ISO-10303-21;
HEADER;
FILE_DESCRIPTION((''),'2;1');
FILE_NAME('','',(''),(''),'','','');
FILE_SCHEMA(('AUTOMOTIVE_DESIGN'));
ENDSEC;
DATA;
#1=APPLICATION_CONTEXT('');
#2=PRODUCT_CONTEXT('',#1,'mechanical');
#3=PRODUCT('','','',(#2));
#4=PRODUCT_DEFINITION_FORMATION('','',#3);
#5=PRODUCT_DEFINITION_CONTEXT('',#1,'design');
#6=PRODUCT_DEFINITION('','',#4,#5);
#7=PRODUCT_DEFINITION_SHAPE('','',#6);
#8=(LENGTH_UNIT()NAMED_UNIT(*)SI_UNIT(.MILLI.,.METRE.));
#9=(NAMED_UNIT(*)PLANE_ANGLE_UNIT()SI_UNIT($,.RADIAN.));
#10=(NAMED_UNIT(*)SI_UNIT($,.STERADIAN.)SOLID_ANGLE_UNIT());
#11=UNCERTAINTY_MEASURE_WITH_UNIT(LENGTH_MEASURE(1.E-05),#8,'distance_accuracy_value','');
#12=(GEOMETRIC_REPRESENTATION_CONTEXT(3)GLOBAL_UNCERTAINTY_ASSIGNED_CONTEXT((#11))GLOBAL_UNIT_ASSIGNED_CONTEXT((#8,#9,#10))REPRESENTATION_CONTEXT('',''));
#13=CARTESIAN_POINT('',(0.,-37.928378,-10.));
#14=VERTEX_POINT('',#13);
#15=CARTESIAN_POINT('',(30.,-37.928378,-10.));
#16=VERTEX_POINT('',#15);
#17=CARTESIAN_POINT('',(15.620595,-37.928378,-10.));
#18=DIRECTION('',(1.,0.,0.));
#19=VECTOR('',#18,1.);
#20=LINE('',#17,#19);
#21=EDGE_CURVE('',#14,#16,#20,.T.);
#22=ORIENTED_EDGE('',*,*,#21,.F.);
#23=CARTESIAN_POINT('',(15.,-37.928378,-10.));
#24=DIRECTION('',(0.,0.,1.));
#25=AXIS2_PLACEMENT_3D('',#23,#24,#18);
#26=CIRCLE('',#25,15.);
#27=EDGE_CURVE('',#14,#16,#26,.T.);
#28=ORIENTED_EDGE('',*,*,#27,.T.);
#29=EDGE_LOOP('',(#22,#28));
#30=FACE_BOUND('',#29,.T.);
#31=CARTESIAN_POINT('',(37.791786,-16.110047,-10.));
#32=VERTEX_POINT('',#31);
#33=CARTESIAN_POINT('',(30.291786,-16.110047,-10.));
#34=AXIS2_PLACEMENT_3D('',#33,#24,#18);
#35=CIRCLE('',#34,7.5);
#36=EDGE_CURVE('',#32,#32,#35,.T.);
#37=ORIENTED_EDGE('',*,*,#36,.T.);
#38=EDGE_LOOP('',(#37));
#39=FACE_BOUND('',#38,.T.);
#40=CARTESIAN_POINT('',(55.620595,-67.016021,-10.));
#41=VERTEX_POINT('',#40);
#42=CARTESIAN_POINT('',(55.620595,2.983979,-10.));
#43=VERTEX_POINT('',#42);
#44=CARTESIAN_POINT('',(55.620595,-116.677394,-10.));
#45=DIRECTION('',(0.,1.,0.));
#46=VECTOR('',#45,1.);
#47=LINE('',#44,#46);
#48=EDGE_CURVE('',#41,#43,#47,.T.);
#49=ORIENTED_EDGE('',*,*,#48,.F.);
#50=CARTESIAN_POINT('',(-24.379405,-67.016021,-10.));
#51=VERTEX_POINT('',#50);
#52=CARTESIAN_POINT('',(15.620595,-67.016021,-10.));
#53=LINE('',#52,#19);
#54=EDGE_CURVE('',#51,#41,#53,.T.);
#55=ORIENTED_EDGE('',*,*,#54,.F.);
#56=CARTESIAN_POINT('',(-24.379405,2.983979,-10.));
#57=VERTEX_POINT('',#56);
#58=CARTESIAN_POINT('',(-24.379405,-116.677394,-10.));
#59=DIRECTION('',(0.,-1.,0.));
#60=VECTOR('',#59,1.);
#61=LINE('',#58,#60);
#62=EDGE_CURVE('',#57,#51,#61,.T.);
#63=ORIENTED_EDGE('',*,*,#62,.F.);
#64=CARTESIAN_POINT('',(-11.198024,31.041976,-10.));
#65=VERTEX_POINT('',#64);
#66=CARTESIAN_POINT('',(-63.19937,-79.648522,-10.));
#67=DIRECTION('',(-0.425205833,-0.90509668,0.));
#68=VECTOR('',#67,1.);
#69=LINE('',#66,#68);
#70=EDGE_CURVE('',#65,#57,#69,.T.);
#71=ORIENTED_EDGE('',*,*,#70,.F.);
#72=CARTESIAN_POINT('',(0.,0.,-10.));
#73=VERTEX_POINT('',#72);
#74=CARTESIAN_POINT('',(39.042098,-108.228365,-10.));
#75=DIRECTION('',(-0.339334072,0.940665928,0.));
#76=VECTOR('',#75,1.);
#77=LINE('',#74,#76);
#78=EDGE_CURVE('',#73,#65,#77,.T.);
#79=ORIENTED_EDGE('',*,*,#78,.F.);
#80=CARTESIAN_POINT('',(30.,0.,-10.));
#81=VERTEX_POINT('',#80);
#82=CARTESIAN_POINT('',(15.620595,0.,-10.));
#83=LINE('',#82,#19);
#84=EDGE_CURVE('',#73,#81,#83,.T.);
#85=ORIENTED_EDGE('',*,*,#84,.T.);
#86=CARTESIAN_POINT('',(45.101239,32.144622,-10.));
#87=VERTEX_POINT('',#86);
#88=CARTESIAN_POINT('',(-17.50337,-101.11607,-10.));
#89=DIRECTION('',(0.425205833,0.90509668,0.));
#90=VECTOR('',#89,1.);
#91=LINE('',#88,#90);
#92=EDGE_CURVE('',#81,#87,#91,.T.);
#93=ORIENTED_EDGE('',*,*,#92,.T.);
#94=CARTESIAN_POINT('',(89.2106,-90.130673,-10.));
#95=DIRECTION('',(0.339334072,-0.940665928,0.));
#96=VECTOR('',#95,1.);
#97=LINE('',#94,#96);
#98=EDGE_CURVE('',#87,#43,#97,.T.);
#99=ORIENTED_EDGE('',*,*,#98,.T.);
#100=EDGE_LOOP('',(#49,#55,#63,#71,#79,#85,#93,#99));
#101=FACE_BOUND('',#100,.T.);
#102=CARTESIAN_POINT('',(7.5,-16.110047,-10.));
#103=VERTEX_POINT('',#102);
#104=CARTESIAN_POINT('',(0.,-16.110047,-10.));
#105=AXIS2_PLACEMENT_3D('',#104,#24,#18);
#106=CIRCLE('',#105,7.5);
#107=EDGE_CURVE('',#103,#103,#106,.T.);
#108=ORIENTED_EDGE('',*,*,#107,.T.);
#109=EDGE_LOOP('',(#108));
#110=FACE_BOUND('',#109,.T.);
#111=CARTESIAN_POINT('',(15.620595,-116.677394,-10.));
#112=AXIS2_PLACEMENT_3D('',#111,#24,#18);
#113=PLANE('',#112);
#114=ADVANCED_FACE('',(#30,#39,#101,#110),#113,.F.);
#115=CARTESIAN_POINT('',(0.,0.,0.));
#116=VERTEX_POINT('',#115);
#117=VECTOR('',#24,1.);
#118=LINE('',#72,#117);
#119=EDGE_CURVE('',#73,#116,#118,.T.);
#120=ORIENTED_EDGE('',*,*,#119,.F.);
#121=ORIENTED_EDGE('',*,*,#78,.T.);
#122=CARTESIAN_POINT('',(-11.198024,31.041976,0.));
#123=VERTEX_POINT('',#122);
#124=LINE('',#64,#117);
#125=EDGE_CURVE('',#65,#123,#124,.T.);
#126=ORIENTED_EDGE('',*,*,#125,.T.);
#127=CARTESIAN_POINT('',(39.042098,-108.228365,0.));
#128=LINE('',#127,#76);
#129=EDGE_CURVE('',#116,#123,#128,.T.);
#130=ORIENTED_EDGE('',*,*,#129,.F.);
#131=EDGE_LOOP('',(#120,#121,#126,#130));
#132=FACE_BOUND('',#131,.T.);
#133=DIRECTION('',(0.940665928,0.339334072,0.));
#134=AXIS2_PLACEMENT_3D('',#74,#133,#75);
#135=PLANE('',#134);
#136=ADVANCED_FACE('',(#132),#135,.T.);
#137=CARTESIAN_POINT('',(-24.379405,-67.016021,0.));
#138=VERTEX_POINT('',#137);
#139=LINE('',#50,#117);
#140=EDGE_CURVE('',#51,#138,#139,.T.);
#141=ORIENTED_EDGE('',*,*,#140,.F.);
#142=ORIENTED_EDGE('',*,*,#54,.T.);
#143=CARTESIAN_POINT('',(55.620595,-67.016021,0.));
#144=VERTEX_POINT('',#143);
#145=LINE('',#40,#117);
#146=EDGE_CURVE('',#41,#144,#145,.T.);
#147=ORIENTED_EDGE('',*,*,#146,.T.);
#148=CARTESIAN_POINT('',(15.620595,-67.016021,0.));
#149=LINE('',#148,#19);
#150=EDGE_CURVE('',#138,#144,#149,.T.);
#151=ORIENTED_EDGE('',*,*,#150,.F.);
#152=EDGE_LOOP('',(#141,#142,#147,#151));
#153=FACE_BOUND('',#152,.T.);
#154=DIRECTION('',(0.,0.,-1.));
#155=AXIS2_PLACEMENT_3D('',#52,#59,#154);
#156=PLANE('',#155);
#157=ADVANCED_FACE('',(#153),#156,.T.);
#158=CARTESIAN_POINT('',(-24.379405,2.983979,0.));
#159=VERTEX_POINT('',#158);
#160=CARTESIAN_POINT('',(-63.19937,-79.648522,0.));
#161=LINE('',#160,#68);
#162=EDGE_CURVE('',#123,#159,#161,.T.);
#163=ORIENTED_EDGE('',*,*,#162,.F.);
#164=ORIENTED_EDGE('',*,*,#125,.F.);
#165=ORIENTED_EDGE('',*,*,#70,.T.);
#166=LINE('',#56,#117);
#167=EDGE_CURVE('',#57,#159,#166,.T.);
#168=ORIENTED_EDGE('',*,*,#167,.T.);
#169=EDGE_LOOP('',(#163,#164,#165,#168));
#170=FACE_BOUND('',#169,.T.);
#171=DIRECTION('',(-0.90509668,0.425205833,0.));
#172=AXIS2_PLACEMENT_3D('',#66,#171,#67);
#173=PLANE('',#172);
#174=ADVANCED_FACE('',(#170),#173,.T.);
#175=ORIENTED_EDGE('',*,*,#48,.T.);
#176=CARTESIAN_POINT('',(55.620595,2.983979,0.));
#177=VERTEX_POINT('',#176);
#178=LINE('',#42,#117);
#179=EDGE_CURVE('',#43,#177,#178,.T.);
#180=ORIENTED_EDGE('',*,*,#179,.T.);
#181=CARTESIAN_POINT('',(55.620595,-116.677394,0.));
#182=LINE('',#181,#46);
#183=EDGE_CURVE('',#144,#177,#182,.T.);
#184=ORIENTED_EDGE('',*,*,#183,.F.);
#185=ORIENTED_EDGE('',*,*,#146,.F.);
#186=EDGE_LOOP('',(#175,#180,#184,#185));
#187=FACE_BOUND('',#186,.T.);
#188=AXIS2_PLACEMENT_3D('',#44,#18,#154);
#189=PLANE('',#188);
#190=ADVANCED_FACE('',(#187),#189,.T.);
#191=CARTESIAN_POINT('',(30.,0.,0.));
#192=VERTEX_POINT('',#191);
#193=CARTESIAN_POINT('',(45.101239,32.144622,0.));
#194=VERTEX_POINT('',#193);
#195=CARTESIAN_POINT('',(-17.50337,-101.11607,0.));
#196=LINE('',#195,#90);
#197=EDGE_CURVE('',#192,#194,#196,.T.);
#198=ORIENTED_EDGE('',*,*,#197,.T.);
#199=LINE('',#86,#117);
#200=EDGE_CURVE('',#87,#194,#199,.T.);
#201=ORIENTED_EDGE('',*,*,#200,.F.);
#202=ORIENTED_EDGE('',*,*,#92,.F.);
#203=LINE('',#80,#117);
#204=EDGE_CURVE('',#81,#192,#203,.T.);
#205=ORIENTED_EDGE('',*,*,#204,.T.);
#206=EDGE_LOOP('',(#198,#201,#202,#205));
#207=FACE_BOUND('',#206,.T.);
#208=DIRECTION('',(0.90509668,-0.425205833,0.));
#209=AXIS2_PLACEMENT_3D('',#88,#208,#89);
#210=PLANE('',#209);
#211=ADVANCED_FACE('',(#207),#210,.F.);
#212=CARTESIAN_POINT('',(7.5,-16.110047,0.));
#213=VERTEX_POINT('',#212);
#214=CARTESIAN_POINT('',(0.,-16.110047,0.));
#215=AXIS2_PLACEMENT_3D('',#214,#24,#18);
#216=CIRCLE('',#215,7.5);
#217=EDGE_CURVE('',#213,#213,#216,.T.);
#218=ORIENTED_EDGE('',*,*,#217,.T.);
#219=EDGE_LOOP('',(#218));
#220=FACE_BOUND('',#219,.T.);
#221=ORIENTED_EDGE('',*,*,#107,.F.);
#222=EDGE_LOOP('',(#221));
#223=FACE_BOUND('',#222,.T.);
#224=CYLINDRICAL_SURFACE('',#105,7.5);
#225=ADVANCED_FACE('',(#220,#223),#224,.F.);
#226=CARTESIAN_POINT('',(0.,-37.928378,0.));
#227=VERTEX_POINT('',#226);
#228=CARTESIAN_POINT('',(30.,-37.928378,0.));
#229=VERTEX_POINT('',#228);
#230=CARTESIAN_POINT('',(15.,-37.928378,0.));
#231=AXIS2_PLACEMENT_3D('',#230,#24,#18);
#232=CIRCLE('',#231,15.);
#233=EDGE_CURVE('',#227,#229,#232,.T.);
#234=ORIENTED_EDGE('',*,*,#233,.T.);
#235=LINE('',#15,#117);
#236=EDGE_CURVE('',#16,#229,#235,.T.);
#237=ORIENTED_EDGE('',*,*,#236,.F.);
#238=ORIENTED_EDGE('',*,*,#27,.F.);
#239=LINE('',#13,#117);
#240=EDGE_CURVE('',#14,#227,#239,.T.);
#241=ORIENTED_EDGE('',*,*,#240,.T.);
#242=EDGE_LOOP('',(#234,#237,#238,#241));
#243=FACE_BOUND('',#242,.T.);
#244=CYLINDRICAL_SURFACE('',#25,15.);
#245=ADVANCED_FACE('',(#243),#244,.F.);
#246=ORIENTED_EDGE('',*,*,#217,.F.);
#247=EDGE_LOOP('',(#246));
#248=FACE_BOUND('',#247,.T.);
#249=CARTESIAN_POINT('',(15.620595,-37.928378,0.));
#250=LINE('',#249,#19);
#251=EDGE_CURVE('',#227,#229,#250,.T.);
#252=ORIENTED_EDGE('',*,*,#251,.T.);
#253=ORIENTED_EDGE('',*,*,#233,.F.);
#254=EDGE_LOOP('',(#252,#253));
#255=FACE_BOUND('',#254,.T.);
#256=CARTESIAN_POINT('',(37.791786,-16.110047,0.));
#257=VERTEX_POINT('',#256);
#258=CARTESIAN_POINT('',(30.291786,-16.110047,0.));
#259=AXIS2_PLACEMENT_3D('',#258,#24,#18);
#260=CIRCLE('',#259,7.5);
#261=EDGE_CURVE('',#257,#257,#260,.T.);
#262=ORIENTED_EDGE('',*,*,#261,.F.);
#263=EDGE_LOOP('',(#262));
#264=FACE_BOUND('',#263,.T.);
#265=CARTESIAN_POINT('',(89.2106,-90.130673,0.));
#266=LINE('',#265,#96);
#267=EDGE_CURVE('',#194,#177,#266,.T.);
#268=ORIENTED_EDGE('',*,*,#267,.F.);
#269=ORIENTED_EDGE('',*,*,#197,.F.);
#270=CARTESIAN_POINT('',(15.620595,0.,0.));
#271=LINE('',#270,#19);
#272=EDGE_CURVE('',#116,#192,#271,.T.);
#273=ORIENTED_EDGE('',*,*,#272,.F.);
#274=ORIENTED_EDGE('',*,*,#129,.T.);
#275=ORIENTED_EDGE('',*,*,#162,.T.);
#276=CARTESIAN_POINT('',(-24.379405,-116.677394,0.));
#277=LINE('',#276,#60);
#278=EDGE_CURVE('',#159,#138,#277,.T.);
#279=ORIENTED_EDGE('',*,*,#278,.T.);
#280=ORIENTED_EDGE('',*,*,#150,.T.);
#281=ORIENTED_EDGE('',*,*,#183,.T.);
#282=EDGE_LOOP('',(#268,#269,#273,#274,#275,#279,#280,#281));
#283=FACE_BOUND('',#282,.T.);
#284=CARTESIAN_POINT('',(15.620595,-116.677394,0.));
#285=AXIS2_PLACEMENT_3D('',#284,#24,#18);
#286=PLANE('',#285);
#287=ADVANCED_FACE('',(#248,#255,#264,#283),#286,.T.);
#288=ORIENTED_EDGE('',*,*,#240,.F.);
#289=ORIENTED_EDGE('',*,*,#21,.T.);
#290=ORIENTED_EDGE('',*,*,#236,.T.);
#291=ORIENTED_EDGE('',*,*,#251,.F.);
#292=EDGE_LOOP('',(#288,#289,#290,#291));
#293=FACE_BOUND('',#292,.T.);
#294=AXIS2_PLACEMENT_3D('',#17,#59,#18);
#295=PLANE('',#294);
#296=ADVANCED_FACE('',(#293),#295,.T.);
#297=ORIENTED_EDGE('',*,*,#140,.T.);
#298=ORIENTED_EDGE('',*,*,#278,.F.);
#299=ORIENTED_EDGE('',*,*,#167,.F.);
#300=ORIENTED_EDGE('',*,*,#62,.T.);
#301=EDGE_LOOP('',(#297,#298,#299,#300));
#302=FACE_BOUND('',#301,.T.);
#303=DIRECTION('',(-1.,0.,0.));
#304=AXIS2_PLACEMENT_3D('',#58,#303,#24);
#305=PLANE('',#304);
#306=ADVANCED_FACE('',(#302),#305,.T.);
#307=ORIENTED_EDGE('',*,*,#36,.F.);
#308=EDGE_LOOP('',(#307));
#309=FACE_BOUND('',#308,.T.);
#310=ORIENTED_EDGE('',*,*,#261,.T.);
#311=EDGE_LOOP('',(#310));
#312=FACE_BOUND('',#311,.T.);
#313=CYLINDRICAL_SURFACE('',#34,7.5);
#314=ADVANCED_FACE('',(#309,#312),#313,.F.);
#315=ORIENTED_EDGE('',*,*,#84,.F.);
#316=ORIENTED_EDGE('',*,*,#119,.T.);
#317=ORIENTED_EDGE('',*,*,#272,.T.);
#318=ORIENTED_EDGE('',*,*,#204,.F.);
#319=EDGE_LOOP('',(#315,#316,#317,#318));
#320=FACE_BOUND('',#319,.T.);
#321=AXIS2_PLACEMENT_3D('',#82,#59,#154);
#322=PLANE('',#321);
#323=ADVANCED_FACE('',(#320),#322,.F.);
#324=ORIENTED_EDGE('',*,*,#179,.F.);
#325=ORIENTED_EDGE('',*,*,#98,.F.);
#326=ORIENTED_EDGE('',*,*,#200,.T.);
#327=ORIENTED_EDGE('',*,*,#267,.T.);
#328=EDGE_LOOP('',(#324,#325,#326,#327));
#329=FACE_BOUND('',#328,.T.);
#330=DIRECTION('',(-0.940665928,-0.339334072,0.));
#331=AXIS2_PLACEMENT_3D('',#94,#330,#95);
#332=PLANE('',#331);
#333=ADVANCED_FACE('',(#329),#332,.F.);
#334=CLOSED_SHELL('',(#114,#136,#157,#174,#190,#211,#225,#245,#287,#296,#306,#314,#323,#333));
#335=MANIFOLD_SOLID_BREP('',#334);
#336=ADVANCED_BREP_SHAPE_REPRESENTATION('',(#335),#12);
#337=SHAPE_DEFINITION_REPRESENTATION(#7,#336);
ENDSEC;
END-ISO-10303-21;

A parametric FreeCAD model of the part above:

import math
import FreeCAD as App
import Part
import Sketcher
from FreeCAD import Vector
Q = App.Units.Quantity


def add_polygon(sketch, points):
    """Adds a closed chain of lines whose ends are joined by coincident constraints."""
    first, n = sketch.GeometryCount, len(points)
    for a, b in zip(points, points[1:] + points[:1]):
        sketch.addGeometry(Part.LineSegment(App.Vector(*a, 0), App.Vector(*b, 0)), False)
    for i in range(n):
        sketch.addConstraint(Sketcher.Constraint("Coincident", first + i, 2, first + (i + 1) % n, 1))

doc = App.newDocument("Part")
body = doc.addObject("PartDesign::Body", "Body")

# Sketch on XY plane
sketch1 = body.newObject("Sketcher::SketchObject", "Sketch")
sketch1.AttachmentSupport = (doc.getObject("XY_Plane"), [""])
sketch1.MapMode = "FlatFace"
add_polygon(sketch1, [(-24.379405, -67.016021), (55.620595, -67.016021), (55.620595, 2.983979), (45.101239, 32.144622), (30, 0), (0, 0), (-11.198024, 31.041976), (-24.379405, 2.983979)])  # lines 0-7
sketch1.addGeometry(Part.ArcOfCircle(Part.Circle(Vector(15, -37.928378, 0), Vector(0, 0, 1), 15), math.radians(180), math.radians(360)), False)  # 8
sketch1.addGeometry(Part.LineSegment(Vector(0, -37.928378, 0), Vector(30, -37.928378, 0)), False)  # 9
sketch1.addGeometry(Part.Circle(Vector(0, -16.110047, 0), Vector(0, 0, 1), 7.5), False)  # 10
sketch1.addGeometry(Part.Circle(Vector(30.291786, -16.110047, 0), Vector(0, 0, 1), 7.5), False)  # 11
sketch1.addConstraint([
    Sketcher.Constraint("Coincident", 8, 1, 9, 1),
    Sketcher.Constraint("Coincident", 9, 2, 8, 2),
    Sketcher.Constraint("Horizontal", 0),
    Sketcher.Constraint("Vertical", 1),
    Sketcher.Constraint("Horizontal", 4),
    Sketcher.Constraint("Vertical", 7),
    Sketcher.Constraint("Horizontal", 9),
    Sketcher.Constraint("Coincident", 4, 2, -1, 1),
    Sketcher.Constraint("Equal", 10, 11),
    Sketcher.Constraint("PointOnObject", 10, 3, -2),
    Sketcher.Constraint("PointOnObject", 8, 1, -2),
    Sketcher.Constraint("Parallel", 2, 5),
    Sketcher.Constraint("Parallel", 3, 6),
    Sketcher.Constraint("Horizontal", 10, 3, 11, 3),
    Sketcher.Constraint("Horizontal", 1, 2, 6, 2),
    Sketcher.Constraint("Vertical", 3, 2, 9, 2),
    Sketcher.Constraint("Equal", 2, 6),
    Sketcher.Constraint("Diameter", 10, Q("15 mm")),
    Sketcher.Constraint("Radius", 8, Q("15 mm")),
    Sketcher.Constraint("DistanceX", 0, 1, 0, 2, Q("80 mm")),
    Sketcher.Constraint("DistanceY", 1, 1, 1, 2, Q("70 mm")),
    Sketcher.Constraint("Distance", 2, Q("31 mm")),
    Sketcher.Constraint("Distance", 5, Q("33 mm")),
    Sketcher.Constraint("DistanceY", 8, 3, 2, 2, Q("70.073001 mm")),
    Sketcher.Constraint("DistanceY", 8, 3, -1, 1, Q("37.928378 mm")),
    Sketcher.Constraint("DistanceY", 8, 1, -1, 1, Q("37.928378 mm")),
    Sketcher.Constraint("DistanceY", 8, 3, 10, 3, Q("21.818331 mm")),
    Sketcher.Constraint("DistanceX", 11, 3, 0, 2, Q("25.328809 mm")),
])
pad1 = body.newObject("PartDesign::Pad", "Pad")
pad1.Profile = sketch1
pad1.Length = 10
pad1.Reversed = True

doc.recompute()
